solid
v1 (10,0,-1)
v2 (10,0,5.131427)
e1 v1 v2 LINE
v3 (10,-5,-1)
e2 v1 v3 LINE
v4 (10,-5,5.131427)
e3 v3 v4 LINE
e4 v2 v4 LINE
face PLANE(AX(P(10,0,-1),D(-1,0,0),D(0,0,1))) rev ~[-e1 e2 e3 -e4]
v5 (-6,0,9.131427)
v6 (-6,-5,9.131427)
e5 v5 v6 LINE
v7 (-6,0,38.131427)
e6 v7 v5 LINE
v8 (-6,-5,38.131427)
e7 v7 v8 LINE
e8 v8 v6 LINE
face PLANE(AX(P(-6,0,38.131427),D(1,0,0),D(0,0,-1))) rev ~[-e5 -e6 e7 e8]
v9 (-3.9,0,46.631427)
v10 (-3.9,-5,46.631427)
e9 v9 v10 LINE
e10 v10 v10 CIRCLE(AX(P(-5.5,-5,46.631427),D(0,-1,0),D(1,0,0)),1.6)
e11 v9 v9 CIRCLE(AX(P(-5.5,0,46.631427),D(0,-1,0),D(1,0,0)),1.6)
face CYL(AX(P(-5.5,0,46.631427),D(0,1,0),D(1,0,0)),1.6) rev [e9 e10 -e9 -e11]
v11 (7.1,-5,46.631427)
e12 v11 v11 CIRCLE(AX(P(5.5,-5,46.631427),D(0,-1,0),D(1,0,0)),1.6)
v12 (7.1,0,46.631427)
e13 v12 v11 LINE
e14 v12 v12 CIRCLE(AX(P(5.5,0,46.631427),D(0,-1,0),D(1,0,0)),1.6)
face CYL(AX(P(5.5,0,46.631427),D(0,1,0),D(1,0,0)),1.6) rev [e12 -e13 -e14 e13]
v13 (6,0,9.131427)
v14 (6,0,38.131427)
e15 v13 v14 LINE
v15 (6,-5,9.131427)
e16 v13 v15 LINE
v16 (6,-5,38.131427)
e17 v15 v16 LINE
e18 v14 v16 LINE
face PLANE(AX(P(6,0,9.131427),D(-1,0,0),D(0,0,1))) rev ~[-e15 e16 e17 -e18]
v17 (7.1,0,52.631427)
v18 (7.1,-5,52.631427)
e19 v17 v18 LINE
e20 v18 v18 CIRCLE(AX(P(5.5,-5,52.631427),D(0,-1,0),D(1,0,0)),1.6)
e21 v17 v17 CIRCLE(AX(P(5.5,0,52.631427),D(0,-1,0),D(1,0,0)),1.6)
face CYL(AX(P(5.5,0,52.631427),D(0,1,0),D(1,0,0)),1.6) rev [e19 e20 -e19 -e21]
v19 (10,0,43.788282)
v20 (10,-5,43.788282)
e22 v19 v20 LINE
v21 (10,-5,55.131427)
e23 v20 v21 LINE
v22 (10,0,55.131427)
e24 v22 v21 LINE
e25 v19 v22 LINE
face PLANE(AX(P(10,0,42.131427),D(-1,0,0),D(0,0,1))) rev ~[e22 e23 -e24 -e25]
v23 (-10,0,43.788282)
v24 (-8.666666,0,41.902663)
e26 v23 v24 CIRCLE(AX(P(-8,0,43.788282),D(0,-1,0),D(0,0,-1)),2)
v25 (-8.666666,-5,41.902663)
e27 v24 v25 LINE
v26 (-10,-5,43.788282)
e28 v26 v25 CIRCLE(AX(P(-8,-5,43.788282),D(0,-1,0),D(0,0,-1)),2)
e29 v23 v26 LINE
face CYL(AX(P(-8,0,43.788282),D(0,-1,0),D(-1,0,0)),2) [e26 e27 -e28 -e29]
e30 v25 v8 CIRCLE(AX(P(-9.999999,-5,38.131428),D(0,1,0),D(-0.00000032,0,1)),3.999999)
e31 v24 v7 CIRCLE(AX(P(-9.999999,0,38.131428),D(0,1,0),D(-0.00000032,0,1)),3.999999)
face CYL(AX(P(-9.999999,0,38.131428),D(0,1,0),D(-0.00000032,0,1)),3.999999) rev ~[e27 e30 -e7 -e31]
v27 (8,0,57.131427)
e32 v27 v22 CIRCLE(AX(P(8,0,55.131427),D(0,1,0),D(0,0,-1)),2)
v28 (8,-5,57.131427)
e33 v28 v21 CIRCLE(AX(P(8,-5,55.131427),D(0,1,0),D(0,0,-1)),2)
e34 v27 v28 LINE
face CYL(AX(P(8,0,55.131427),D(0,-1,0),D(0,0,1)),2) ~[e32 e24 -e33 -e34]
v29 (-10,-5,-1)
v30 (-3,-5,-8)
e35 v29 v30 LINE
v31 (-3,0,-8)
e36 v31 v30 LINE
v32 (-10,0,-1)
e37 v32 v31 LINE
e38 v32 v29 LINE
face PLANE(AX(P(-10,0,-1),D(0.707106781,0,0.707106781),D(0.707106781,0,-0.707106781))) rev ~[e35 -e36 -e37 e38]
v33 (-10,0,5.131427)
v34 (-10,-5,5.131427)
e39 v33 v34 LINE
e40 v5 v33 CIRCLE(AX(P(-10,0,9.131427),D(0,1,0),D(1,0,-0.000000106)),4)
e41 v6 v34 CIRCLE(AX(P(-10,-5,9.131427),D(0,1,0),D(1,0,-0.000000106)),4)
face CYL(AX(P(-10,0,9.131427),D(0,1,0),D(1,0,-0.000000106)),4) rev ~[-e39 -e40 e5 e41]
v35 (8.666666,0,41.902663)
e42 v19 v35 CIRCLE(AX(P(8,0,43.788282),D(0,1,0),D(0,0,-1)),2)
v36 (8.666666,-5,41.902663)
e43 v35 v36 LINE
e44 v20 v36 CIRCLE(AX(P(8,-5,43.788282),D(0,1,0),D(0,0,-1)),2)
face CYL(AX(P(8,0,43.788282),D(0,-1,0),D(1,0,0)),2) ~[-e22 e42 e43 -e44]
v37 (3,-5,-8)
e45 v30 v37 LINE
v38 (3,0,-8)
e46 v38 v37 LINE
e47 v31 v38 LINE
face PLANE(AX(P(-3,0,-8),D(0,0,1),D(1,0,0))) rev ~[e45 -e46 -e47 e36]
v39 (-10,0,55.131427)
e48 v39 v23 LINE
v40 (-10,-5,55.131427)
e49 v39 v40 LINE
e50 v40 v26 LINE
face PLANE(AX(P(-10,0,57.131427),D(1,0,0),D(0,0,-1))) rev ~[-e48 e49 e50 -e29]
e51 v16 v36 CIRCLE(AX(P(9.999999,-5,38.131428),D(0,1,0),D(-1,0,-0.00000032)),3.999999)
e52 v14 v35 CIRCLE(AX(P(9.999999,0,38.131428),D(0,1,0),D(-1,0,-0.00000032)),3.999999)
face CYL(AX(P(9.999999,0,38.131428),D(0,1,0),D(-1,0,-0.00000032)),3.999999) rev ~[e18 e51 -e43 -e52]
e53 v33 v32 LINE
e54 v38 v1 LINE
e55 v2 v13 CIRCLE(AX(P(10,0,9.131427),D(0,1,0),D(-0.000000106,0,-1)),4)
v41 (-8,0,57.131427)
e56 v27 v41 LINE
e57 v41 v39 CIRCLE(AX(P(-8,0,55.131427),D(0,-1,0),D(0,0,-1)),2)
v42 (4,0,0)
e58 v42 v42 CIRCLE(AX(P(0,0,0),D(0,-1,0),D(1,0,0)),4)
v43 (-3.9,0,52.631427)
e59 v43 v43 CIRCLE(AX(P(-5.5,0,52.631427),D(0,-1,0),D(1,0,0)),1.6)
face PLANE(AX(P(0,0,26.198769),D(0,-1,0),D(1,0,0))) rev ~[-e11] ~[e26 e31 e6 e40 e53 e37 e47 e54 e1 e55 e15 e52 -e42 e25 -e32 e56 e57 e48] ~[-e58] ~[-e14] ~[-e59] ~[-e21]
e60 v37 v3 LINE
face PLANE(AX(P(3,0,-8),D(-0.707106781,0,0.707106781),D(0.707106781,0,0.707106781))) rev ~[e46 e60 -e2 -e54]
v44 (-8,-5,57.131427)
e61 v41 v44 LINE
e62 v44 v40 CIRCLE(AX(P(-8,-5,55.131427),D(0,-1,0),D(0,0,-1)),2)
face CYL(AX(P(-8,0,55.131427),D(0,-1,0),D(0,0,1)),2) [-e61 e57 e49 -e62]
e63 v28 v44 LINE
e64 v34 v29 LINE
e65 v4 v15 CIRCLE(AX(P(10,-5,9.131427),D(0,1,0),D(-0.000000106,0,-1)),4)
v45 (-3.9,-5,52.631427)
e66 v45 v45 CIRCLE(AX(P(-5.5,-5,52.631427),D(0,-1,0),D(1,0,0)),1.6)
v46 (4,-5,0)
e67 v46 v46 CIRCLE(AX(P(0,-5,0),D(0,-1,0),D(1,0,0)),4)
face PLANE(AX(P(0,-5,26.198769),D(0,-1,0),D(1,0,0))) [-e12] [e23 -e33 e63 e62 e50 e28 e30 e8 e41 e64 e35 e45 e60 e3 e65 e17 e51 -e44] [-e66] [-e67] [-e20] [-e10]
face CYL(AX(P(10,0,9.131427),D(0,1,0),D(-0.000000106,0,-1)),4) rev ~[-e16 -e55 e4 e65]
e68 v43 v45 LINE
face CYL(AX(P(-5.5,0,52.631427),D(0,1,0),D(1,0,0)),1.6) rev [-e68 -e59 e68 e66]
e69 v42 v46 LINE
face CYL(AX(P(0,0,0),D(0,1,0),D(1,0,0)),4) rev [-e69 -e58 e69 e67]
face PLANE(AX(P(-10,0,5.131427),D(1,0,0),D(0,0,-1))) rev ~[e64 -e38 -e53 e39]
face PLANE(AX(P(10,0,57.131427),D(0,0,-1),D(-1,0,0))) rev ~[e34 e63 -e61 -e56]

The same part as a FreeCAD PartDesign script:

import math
import FreeCAD as App
import Part
import Sketcher
from FreeCAD import Vector


def edges_at(feature, points):
    """Names of the edges that pass closest to the given points."""
    edges = feature.Shape.Edges
    near = lambda p: min(range(len(edges)), key=lambda i: edges[i].distToShape(Part.Vertex(*p))[0])
    return sorted({f"Edge{near(p) + 1}" for p in points})

doc = App.newDocument("Part")
params = doc.addObject("Spreadsheet::Sheet", "Params")
for row, (alias, value) in enumerate([
    ("sketch1_diameter", "8 mm"),
    ("sketch1_diameter2", "3.2 mm"),
    ("sketch1_width", "20 mm"),
    ("sketch1_width2", "6 mm"),
    ("sketch1_height", "15 mm"),
    ("pad1_length", "5 mm"),
    ("fillet_radius", "2 mm"),
], start=1):
    params.set(f"A{row}", alias)
    params.set(f"B{row}", "=" + value)
    params.setAlias(f"B{row}", alias)

body = doc.addObject("PartDesign::Body", "Body")

# Sketch on XZ plane
sketch1 = doc.addObject("Sketcher::SketchObject", "Sketch")
body.addObject(sketch1)
sketch1.AttachmentSupport = (doc.XZ_Plane, [""])
sketch1.MapMode = "FlatFace"
sketch1.addGeometry([
    Part.LineSegment(Vector(10, 57.1, 0), Vector(-10, 57.1, 0)),  # 0
    Part.LineSegment(Vector(-10, 57.1, 0), Vector(-10, 42.1, 0)),  # 1
    Part.ArcOfCircle(Part.Circle(Vector(-10, 38.1, 0), Vector(0, 0, 1), 4), math.radians(0), math.radians(90)),  # 2
    Part.LineSegment(Vector(-6, 38.1, 0), Vector(-6, 9.1, 0)),  # 3
    Part.ArcOfCircle(Part.Circle(Vector(-10, 9.1, 0), Vector(0, 0, 1), 4), math.radians(-90), math.radians(0)),  # 4
    Part.LineSegment(Vector(-10, 5.1, 0), Vector(-10, -1, 0)),  # 5
    Part.LineSegment(Vector(-10, -1, 0), Vector(-3, -8, 0)),  # 6
    Part.LineSegment(Vector(-3, -8, 0), Vector(3, -8, 0)),  # 7
    Part.LineSegment(Vector(3, -8, 0), Vector(10, -1, 0)),  # 8
    Part.LineSegment(Vector(10, -1, 0), Vector(10, 5.1, 0)),  # 9
    Part.ArcOfCircle(Part.Circle(Vector(10, 9.1, 0), Vector(0, 0, 1), 4), math.radians(-180), math.radians(-90)),  # 10
    Part.LineSegment(Vector(6, 9.1, 0), Vector(6, 38.1, 0)),  # 11
    Part.ArcOfCircle(Part.Circle(Vector(10, 38.1, 0), Vector(0, 0, 1), 4), math.radians(90), math.radians(180)),  # 12
    Part.LineSegment(Vector(10, 42.1, 0), Vector(10, 57.1, 0)),  # 13
    Part.Circle(Vector(0, 0, 0), Vector(0, 0, 1), 4),  # 14
    Part.Circle(Vector(-5.5, 46.6, 0), Vector(0, 0, 1), 1.6),  # 15
    Part.Circle(Vector(-5.5, 52.6, 0), Vector(0, 0, 1), 1.6),  # 16
    Part.Circle(Vector(5.5, 46.6, 0), Vector(0, 0, 1), 1.6),  # 17
    Part.Circle(Vector(5.5, 52.6, 0), Vector(0, 0, 1), 1.6),  # 18
], False)
sketch1.addConstraint([
    Sketcher.Constraint("Coincident", 0, 2, 1, 1),
    Sketcher.Constraint("Coincident", 1, 2, 2, 2),
    Sketcher.Constraint("Tangent", 2, 1, 3, 1),
    Sketcher.Constraint("Tangent", 3, 2, 4, 2),
    Sketcher.Constraint("Coincident", 4, 1, 5, 1),
    Sketcher.Constraint("Coincident", 5, 2, 6, 1),
    Sketcher.Constraint("Coincident", 6, 2, 7, 1),
    Sketcher.Constraint("Coincident", 7, 2, 8, 1),
    Sketcher.Constraint("Coincident", 8, 2, 9, 1),
    Sketcher.Constraint("Coincident", 9, 2, 10, 2),
    Sketcher.Constraint("Tangent", 10, 1, 11, 1),
    Sketcher.Constraint("Tangent", 11, 2, 12, 2),
    Sketcher.Constraint("Coincident", 12, 1, 13, 1),
    Sketcher.Constraint("Coincident", 13, 2, 0, 1),
    Sketcher.Constraint("Horizontal", 0),
    Sketcher.Constraint("Vertical", 1),
    Sketcher.Constraint("Vertical", 3),
    Sketcher.Constraint("Vertical", 5),
    Sketcher.Constraint("Horizontal", 7),
    Sketcher.Constraint("Vertical", 9),
    Sketcher.Constraint("Vertical", 11),
    Sketcher.Constraint("Vertical", 13),
    Sketcher.Constraint("Coincident", 14, 3, -1, 1),
    Sketcher.Constraint("Equal", 2, 4),
    Sketcher.Constraint("Equal", 4, 10),
    Sketcher.Constraint("Equal", 10, 12),
    Sketcher.Constraint("Equal", 12, 14),
    Sketcher.Constraint("Equal", 15, 16),
    Sketcher.Constraint("Equal", 16, 17),
    Sketcher.Constraint("Equal", 17, 18),
    Sketcher.Constraint("Symmetric", 4, 3, 10, 3, -2),
    Sketcher.Constraint("Symmetric", 15, 3, 17, 3, -2),
    Sketcher.Constraint("Symmetric", 16, 3, 18, 3, -2),
    Sketcher.Constraint("Symmetric", 5, 2, 8, 2, -2),
    Sketcher.Constraint("Symmetric", 1, 2, 12, 1, -2),
    Sketcher.Constraint("Perpendicular", 6, 8),
    Sketcher.Constraint("Vertical", 15, 3, 16, 3),
    Sketcher.Constraint("Vertical", 4, 3, 0, 2),
    Sketcher.Constraint("Vertical", 1, 2, 4, 1),
    Sketcher.Constraint("Equal", 6, 8),
    Sketcher.Constraint("Diameter", 14, 8.0),
    Sketcher.Constraint("Diameter", 15, 3.2),
    Sketcher.Constraint("DistanceX", 0, 2, 0, 1, 20.0),
    Sketcher.Constraint("DistanceX", 7, 1, 7, 2, 6.0),
    Sketcher.Constraint("DistanceY", 1, 2, 1, 1, 15.0),
    Sketcher.Constraint("DistanceY", 3, 2, 3, 1, 29.0),
    Sketcher.Constraint("DistanceY", 5, 2, -1, 1, 1.0),
    Sketcher.Constraint("DistanceY", 15, 3, 16, 3, 6.0),
    Sketcher.Constraint("DistanceX", 15, 3, 17, 3, 11.0),
    Sketcher.Constraint("DistanceY", 2, 3, 15, 3, 8.499999),
    Sketcher.Constraint("DistanceY", 5, 2, 5, 1, 6.131427),
])
sketch1.setExpression("Constraints[40]", "Params.sketch1_diameter")
sketch1.setExpression("Constraints[41]", "Params.sketch1_diameter2")
sketch1.setExpression("Constraints[42]", "Params.sketch1_width")
sketch1.setExpression("Constraints[43]", "Params.sketch1_width2")
sketch1.setExpression("Constraints[44]", "Params.sketch1_height")
pad1 = doc.addObject("PartDesign::Pad", "Pad")
body.addObject(pad1)
pad1.Profile = sketch1
pad1.setExpression("Length", "Params.pad1_length")
doc.recompute()

fillet = doc.addObject("PartDesign::Fillet", "Fillet")
body.addObject(fillet)
fillet.Base = (pad1, edges_at(pad1, [
    (10, -2.5, 57.131),
    (10, -2.5, 42.131),
    (-10, -2.5, 42.131),
    (-10, -2.5, 57.131),
]))
fillet.setExpression("Radius", "Params.fillet_radius")

doc.recompute()
